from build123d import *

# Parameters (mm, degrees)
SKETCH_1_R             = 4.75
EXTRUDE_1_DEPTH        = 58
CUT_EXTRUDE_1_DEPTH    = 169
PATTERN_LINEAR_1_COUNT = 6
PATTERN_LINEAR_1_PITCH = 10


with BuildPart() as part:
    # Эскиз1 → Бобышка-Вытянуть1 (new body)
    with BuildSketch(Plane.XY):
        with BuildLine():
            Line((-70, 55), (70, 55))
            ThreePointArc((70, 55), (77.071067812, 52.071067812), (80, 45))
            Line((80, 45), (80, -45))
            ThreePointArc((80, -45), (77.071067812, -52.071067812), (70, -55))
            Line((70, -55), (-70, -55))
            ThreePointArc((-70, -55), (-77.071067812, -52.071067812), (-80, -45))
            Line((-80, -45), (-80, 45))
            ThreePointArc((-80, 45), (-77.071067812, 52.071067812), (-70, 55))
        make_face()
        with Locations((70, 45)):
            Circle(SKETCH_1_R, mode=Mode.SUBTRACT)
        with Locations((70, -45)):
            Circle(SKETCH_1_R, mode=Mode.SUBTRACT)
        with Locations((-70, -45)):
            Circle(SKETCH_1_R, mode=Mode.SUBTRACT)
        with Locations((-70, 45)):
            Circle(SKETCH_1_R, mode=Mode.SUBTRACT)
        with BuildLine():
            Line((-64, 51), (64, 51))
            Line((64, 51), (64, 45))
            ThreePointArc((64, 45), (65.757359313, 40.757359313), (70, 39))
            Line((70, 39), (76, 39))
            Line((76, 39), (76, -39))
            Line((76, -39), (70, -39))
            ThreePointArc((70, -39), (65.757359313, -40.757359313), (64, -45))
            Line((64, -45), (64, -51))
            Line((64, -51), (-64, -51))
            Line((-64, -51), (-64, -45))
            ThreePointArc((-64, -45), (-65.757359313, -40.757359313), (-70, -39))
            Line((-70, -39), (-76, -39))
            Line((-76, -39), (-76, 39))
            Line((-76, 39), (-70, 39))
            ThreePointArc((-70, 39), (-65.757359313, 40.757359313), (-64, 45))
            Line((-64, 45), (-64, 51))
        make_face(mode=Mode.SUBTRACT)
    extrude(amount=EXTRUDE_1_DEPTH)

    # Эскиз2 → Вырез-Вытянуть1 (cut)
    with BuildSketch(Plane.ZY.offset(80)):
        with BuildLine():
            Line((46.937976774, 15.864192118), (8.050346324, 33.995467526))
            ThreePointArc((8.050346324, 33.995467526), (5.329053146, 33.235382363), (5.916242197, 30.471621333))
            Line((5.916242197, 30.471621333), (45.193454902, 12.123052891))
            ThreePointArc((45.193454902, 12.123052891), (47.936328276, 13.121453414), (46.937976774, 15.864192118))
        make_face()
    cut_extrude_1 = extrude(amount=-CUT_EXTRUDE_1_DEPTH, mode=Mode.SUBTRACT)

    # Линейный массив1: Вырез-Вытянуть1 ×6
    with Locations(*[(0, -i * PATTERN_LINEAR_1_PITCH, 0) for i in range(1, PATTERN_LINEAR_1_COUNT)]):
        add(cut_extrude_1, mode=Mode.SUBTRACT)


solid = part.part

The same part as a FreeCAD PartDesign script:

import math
import FreeCAD as App
import Part
import Sketcher

doc = App.newDocument("Part")
body = doc.addObject("PartDesign::Body", "Body")

sketch1 = body.newObject("Sketcher::SketchObject", "Sketch")
sketch1.AttachmentSupport = (doc.getObject("XY_Plane"), [""])
sketch1.MapMode = "FlatFace"
sketch1.addGeometry([
    Part.LineSegment(App.Vector(70, 55, 0), App.Vector(-70, 55, 0)),
    Part.ArcOfCircle(Part.Circle(App.Vector(-70, 45, 0), App.Vector(0, 0, 1), 10), math.radians(90), math.radians(180)),
    Part.LineSegment(App.Vector(-80, 45, 0), App.Vector(-80, -45, 0)),
    Part.ArcOfCircle(Part.Circle(App.Vector(-70, -45, 0), App.Vector(0, 0, 1), 10), math.radians(180), math.radians(270)),
    Part.LineSegment(App.Vector(-70, -55, 0), App.Vector(70, -55, 0)),
    Part.ArcOfCircle(Part.Circle(App.Vector(70, -45, 0), App.Vector(0, 0, 1), 10), math.radians(-90), math.radians(0)),
    Part.LineSegment(App.Vector(80, -45, 0), App.Vector(80, 45, 0)),
    Part.ArcOfCircle(Part.Circle(App.Vector(70, 45, 0), App.Vector(0, 0, 1), 10), math.radians(0), math.radians(90)),
    Part.Circle(App.Vector(70, -45, 0), App.Vector(0, 0, 1), 4.8),
    Part.Circle(App.Vector(-70, -45, 0), App.Vector(0, 0, 1), 4.8),
    Part.Circle(App.Vector(70, 45, 0), App.Vector(0, 0, 1), 4.8),
    Part.LineSegment(App.Vector(-64, 51, 0), App.Vector(64, 51, 0)),
    Part.LineSegment(App.Vector(64, 51, 0), App.Vector(64, 45, 0)),
    Part.ArcOfCircle(Part.Circle(App.Vector(70, 45, 0), App.Vector(0, 0, 1), 6), math.radians(180), math.radians(270)),
    Part.LineSegment(App.Vector(70, 39, 0), App.Vector(76, 39, 0)),
    Part.LineSegment(App.Vector(76, 39, 0), App.Vector(76, -39, 0)),
    Part.LineSegment(App.Vector(76, -39, 0), App.Vector(70, -39, 0)),
    Part.ArcOfCircle(Part.Circle(App.Vector(70, -45, 0), App.Vector(0, 0, 1), 6), math.radians(90), math.radians(180)),
    Part.LineSegment(App.Vector(64, -45, 0), App.Vector(64, -51, 0)),
    Part.LineSegment(App.Vector(64, -51, 0), App.Vector(-64, -51, 0)),
    Part.LineSegment(App.Vector(-64, -51, 0), App.Vector(-64, -45, 0)),
    Part.ArcOfCircle(Part.Circle(App.Vector(-70, -45, 0), App.Vector(0, 0, 1), 6), math.radians(0), math.radians(90)),
    Part.LineSegment(App.Vector(-70, -39, 0), App.Vector(-76, -39, 0)),
    Part.LineSegment(App.Vector(-76, -39, 0), App.Vector(-76, 39, 0)),
    Part.LineSegment(App.Vector(-76, 39, 0), App.Vector(-70, 39, 0)),
    Part.ArcOfCircle(Part.Circle(App.Vector(-70, 45, 0), App.Vector(0, 0, 1), 6), math.radians(-90), math.radians(0)),
    Part.LineSegment(App.Vector(-64, 45, 0), App.Vector(-64, 51, 0)),
    Part.Circle(App.Vector(-70, 45, 0), App.Vector(0, 0, 1), 4.8),
], False)
sketch1.addConstraint([
    Sketcher.Constraint("Tangent", 0, 2, 1, 1),
    Sketcher.Constraint("Tangent", 1, 2, 2, 1),
    Sketcher.Constraint("Tangent", 2, 2, 3, 1),
    Sketcher.Constraint("Tangent", 3, 2, 4, 1),
    Sketcher.Constraint("Tangent", 4, 2, 5, 1),
    Sketcher.Constraint("Tangent", 5, 2, 6, 1),
    Sketcher.Constraint("Tangent", 6, 2, 7, 1),
    Sketcher.Constraint("Tangent", 7, 2, 0, 1),
    Sketcher.Constraint("Coincident", 11, 2, 12, 1),
    Sketcher.Constraint("Tangent", 12, 2, 13, 1),
    Sketcher.Constraint("Tangent", 13, 2, 14, 1),
    Sketcher.Constraint("Coincident", 14, 2, 15, 1),
    Sketcher.Constraint("Coincident", 15, 2, 16, 1),
    Sketcher.Constraint("Tangent", 16, 2, 17, 1),
    Sketcher.Constraint("Tangent", 17, 2, 18, 1),
    Sketcher.Constraint("Coincident", 18, 2, 19, 1),
    Sketcher.Constraint("Coincident", 19, 2, 20, 1),
    Sketcher.Constraint("Tangent", 20, 2, 21, 1),
    Sketcher.Constraint("Tangent", 21, 2, 22, 1),
    Sketcher.Constraint("Coincident", 22, 2, 23, 1),
    Sketcher.Constraint("Coincident", 23, 2, 24, 1),
    Sketcher.Constraint("Tangent", 24, 2, 25, 1),
    Sketcher.Constraint("Tangent", 25, 2, 26, 1),
    Sketcher.Constraint("Coincident", 26, 2, 11, 1),
    Sketcher.Constraint("Horizontal", 0),
    Sketcher.Constraint("Vertical", 2),
    Sketcher.Constraint("Horizontal", 4),
    Sketcher.Constraint("Vertical", 6),
    Sketcher.Constraint("Horizontal", 11),
    Sketcher.Constraint("Vertical", 12),
    Sketcher.Constraint("Horizontal", 14),
    Sketcher.Constraint("Vertical", 15),
    Sketcher.Constraint("Horizontal", 16),
    Sketcher.Constraint("Vertical", 18),
    Sketcher.Constraint("Horizontal", 19),
    Sketcher.Constraint("Vertical", 20),
    Sketcher.Constraint("Horizontal", 22),
    Sketcher.Constraint("Vertical", 23),
    Sketcher.Constraint("Horizontal", 24),
    Sketcher.Constraint("Vertical", 26),
    Sketcher.Constraint("Coincident", 8, 3, 5, 3),
    Sketcher.Constraint("Coincident", 9, 3, 3, 3),
    Sketcher.Constraint("Coincident", 10, 3, 7, 3),
    Sketcher.Constraint("Coincident", 13, 3, 7, 3),
    Sketcher.Constraint("Coincident", 17, 3, 5, 3),
    Sketcher.Constraint("Coincident", 21, 3, 3, 3),
    Sketcher.Constraint("Coincident", 25, 3, 1, 3),
    Sketcher.Constraint("Coincident", 27, 3, 1, 3),
    Sketcher.Constraint("Equal", 1, 3),
    Sketcher.Constraint("Equal", 3, 5),
    Sketcher.Constraint("Equal", 5, 7),
    Sketcher.Constraint("Equal", 8, 9),
    Sketcher.Constraint("Equal", 9, 10),
    Sketcher.Constraint("Equal", 13, 17),
    Sketcher.Constraint("Equal", 17, 21),
    Sketcher.Constraint("Equal", 21, 25),
    Sketcher.Constraint("Equal", 10, 27),
    Sketcher.Constraint("Symmetric", 1, 3, 5, 3, -1, 1),
    Sketcher.Constraint("Equal", 16, 22),
    Sketcher.Constraint("Equal", 24, 12),
    Sketcher.Constraint("Equal", 12, 18),
    Sketcher.Constraint("Radius", 1, 10.0),
    Sketcher.Constraint("Radius", 13, 6.0),
    Sketcher.Constraint("Diameter", 8, 9.5),
    Sketcher.Constraint("DistanceX", 0, 2, 0, 1, 140.0),
    Sketcher.Constraint("DistanceX", 14, 1, 14, 2, 6.0),
    Sketcher.Constraint("DistanceY", 2, 2, 2, 1, 90.0),
])
pad1 = body.newObject("PartDesign::Pad", "Pad")
pad1.Profile = sketch1
pad1.Length = 58

sketch2 = body.newObject("Sketcher::SketchObject", "Sketch001")
sketch2.AttachmentSupport = (doc.getObject("YZ_Plane"), [""])
sketch2.MapMode = "FlatFace"
sketch2.AttachmentOffset = App.Placement(App.Vector(0, 0, -80), App.Rotation())
sketch2.addGeometry([
    Part.LineSegment(App.Vector(15.9, 46.9, 0), App.Vector(34, 8.1, 0)),
    Part.ArcOfCircle(Part.Circle(App.Vector(32.2, 7.1, 0), App.Vector(0, 0, 1), 2.1), math.radians(-145), math.radians(28)),
    Part.LineSegment(App.Vector(30.5, 5.9, 0), App.Vector(12.1, 45.2, 0)),
    Part.ArcOfCircle(Part.Circle(App.Vector(14, 46.1, 0), App.Vector(0, 0, 1), 2.1), math.radians(25), math.radians(205)),
], False)
sketch2.addConstraint([
    Sketcher.Constraint("Coincident", 0, 2, 1, 2),
    Sketcher.Constraint("Coincident", 1, 1, 2, 1),
    Sketcher.Constraint("Coincident", 2, 2, 3, 2),
    Sketcher.Constraint("Coincident", 3, 1, 0, 1),
    Sketcher.Constraint("Equal", 1, 3),
    Sketcher.Constraint("Radius", 1, 2.063945),
    Sketcher.Constraint("DistanceX", 3, 3, 1, 1, 16.477999),
    Sketcher.Constraint("Distance", 0, 42.90677),
    Sketcher.Constraint("DistanceY", -1, 1, 1, 3, 7.094481),
    Sketcher.Constraint("DistanceX", -1, 1, 1, 1, 30.471621),
    Sketcher.Constraint("DistanceX", 1, 3, 0, 2, 1.82926),
    Sketcher.Constraint("DistanceY", 0, 2, 3, 3, 38.01537),
    Sketcher.Constraint("DistanceY", 1, 1, 1, 3, 1.178239),
    Sketcher.Constraint("DistanceX", 2, 2, 3, 3, 1.87057),
])
pocket1 = body.newObject("PartDesign::Pocket", "Pocket")
pocket1.Profile = sketch2
pocket1.Length = 169
pocket1.Reversed = True
doc.recompute()

linearpattern = body.newObject("PartDesign::LinearPattern", "LinearPattern")
linearpattern.Originals = [pocket1]
linearpattern.Direction = (doc.getObject("Y_Axis"), [""])
linearpattern.Mode = "offset"
linearpattern.Offset = 10
linearpattern.Occurrences = 6
linearpattern.Reversed = True
body.Tip = linearpattern

doc.recompute()
